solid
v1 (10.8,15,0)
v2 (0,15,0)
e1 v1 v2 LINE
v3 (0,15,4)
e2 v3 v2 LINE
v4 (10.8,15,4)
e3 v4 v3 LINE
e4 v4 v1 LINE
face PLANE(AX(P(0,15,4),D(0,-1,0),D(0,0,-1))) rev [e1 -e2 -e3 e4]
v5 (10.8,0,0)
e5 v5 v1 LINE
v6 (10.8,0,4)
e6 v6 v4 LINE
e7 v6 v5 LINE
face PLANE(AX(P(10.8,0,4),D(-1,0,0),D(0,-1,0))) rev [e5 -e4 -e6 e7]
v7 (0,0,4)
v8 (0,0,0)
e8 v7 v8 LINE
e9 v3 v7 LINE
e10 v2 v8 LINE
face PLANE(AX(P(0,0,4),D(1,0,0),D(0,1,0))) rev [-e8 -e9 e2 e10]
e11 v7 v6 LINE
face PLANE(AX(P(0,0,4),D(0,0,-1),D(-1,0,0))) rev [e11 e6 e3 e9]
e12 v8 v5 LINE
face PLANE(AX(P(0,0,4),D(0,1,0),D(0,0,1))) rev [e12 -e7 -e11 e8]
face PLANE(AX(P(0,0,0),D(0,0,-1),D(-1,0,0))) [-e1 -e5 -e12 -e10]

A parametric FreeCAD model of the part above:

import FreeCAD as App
import Part
import Sketcher

V = App.Vector
Q = App.Units.Quantity


def add_polygon(sketch, points):
    """Adds a closed chain of lines whose ends are joined by coincident constraints."""
    first, n = sketch.GeometryCount, len(points)
    for a, b in zip(points, points[1:] + points[:1]):
        sketch.addGeometry(Part.LineSegment(App.Vector(*a, 0), App.Vector(*b, 0)), False)
    for i in range(n):
        sketch.addConstraint(Sketcher.Constraint("Coincident", first + i, 2, first + (i + 1) % n, 1))

doc = App.newDocument("Part")
body = doc.addObject("PartDesign::Body", "Body")

sketch1 = doc.addObject("Sketcher::SketchObject", "Sketch")
body.addObject(sketch1)
sketch1.AttachmentSupport = (doc.XY_Plane, [""])
sketch1.MapMode = "FlatFace"
add_polygon(sketch1, [(0, 15), (0, 0), (11, 0), (11, 15)])
sketch1.addConstraint([
    Sketcher.Constraint("Vertical", 0),
    Sketcher.Constraint("Horizontal", 1),
    Sketcher.Constraint("Vertical", 2),
    Sketcher.Constraint("Horizontal", 3),
    Sketcher.Constraint("Coincident", 0, 2, -1, 1),
    Sketcher.Constraint("DistanceY", 0, 2, 0, 1, Q("15 mm")),
    Sketcher.Constraint("DistanceX", 1, 1, 1, 2, Q("10.8 mm")),
])
pad1 = doc.addObject("PartDesign::Pad", "Pad")
body.addObject(pad1)
pad1.Profile = sketch1
pad1.Length = 4

doc.recompute()
